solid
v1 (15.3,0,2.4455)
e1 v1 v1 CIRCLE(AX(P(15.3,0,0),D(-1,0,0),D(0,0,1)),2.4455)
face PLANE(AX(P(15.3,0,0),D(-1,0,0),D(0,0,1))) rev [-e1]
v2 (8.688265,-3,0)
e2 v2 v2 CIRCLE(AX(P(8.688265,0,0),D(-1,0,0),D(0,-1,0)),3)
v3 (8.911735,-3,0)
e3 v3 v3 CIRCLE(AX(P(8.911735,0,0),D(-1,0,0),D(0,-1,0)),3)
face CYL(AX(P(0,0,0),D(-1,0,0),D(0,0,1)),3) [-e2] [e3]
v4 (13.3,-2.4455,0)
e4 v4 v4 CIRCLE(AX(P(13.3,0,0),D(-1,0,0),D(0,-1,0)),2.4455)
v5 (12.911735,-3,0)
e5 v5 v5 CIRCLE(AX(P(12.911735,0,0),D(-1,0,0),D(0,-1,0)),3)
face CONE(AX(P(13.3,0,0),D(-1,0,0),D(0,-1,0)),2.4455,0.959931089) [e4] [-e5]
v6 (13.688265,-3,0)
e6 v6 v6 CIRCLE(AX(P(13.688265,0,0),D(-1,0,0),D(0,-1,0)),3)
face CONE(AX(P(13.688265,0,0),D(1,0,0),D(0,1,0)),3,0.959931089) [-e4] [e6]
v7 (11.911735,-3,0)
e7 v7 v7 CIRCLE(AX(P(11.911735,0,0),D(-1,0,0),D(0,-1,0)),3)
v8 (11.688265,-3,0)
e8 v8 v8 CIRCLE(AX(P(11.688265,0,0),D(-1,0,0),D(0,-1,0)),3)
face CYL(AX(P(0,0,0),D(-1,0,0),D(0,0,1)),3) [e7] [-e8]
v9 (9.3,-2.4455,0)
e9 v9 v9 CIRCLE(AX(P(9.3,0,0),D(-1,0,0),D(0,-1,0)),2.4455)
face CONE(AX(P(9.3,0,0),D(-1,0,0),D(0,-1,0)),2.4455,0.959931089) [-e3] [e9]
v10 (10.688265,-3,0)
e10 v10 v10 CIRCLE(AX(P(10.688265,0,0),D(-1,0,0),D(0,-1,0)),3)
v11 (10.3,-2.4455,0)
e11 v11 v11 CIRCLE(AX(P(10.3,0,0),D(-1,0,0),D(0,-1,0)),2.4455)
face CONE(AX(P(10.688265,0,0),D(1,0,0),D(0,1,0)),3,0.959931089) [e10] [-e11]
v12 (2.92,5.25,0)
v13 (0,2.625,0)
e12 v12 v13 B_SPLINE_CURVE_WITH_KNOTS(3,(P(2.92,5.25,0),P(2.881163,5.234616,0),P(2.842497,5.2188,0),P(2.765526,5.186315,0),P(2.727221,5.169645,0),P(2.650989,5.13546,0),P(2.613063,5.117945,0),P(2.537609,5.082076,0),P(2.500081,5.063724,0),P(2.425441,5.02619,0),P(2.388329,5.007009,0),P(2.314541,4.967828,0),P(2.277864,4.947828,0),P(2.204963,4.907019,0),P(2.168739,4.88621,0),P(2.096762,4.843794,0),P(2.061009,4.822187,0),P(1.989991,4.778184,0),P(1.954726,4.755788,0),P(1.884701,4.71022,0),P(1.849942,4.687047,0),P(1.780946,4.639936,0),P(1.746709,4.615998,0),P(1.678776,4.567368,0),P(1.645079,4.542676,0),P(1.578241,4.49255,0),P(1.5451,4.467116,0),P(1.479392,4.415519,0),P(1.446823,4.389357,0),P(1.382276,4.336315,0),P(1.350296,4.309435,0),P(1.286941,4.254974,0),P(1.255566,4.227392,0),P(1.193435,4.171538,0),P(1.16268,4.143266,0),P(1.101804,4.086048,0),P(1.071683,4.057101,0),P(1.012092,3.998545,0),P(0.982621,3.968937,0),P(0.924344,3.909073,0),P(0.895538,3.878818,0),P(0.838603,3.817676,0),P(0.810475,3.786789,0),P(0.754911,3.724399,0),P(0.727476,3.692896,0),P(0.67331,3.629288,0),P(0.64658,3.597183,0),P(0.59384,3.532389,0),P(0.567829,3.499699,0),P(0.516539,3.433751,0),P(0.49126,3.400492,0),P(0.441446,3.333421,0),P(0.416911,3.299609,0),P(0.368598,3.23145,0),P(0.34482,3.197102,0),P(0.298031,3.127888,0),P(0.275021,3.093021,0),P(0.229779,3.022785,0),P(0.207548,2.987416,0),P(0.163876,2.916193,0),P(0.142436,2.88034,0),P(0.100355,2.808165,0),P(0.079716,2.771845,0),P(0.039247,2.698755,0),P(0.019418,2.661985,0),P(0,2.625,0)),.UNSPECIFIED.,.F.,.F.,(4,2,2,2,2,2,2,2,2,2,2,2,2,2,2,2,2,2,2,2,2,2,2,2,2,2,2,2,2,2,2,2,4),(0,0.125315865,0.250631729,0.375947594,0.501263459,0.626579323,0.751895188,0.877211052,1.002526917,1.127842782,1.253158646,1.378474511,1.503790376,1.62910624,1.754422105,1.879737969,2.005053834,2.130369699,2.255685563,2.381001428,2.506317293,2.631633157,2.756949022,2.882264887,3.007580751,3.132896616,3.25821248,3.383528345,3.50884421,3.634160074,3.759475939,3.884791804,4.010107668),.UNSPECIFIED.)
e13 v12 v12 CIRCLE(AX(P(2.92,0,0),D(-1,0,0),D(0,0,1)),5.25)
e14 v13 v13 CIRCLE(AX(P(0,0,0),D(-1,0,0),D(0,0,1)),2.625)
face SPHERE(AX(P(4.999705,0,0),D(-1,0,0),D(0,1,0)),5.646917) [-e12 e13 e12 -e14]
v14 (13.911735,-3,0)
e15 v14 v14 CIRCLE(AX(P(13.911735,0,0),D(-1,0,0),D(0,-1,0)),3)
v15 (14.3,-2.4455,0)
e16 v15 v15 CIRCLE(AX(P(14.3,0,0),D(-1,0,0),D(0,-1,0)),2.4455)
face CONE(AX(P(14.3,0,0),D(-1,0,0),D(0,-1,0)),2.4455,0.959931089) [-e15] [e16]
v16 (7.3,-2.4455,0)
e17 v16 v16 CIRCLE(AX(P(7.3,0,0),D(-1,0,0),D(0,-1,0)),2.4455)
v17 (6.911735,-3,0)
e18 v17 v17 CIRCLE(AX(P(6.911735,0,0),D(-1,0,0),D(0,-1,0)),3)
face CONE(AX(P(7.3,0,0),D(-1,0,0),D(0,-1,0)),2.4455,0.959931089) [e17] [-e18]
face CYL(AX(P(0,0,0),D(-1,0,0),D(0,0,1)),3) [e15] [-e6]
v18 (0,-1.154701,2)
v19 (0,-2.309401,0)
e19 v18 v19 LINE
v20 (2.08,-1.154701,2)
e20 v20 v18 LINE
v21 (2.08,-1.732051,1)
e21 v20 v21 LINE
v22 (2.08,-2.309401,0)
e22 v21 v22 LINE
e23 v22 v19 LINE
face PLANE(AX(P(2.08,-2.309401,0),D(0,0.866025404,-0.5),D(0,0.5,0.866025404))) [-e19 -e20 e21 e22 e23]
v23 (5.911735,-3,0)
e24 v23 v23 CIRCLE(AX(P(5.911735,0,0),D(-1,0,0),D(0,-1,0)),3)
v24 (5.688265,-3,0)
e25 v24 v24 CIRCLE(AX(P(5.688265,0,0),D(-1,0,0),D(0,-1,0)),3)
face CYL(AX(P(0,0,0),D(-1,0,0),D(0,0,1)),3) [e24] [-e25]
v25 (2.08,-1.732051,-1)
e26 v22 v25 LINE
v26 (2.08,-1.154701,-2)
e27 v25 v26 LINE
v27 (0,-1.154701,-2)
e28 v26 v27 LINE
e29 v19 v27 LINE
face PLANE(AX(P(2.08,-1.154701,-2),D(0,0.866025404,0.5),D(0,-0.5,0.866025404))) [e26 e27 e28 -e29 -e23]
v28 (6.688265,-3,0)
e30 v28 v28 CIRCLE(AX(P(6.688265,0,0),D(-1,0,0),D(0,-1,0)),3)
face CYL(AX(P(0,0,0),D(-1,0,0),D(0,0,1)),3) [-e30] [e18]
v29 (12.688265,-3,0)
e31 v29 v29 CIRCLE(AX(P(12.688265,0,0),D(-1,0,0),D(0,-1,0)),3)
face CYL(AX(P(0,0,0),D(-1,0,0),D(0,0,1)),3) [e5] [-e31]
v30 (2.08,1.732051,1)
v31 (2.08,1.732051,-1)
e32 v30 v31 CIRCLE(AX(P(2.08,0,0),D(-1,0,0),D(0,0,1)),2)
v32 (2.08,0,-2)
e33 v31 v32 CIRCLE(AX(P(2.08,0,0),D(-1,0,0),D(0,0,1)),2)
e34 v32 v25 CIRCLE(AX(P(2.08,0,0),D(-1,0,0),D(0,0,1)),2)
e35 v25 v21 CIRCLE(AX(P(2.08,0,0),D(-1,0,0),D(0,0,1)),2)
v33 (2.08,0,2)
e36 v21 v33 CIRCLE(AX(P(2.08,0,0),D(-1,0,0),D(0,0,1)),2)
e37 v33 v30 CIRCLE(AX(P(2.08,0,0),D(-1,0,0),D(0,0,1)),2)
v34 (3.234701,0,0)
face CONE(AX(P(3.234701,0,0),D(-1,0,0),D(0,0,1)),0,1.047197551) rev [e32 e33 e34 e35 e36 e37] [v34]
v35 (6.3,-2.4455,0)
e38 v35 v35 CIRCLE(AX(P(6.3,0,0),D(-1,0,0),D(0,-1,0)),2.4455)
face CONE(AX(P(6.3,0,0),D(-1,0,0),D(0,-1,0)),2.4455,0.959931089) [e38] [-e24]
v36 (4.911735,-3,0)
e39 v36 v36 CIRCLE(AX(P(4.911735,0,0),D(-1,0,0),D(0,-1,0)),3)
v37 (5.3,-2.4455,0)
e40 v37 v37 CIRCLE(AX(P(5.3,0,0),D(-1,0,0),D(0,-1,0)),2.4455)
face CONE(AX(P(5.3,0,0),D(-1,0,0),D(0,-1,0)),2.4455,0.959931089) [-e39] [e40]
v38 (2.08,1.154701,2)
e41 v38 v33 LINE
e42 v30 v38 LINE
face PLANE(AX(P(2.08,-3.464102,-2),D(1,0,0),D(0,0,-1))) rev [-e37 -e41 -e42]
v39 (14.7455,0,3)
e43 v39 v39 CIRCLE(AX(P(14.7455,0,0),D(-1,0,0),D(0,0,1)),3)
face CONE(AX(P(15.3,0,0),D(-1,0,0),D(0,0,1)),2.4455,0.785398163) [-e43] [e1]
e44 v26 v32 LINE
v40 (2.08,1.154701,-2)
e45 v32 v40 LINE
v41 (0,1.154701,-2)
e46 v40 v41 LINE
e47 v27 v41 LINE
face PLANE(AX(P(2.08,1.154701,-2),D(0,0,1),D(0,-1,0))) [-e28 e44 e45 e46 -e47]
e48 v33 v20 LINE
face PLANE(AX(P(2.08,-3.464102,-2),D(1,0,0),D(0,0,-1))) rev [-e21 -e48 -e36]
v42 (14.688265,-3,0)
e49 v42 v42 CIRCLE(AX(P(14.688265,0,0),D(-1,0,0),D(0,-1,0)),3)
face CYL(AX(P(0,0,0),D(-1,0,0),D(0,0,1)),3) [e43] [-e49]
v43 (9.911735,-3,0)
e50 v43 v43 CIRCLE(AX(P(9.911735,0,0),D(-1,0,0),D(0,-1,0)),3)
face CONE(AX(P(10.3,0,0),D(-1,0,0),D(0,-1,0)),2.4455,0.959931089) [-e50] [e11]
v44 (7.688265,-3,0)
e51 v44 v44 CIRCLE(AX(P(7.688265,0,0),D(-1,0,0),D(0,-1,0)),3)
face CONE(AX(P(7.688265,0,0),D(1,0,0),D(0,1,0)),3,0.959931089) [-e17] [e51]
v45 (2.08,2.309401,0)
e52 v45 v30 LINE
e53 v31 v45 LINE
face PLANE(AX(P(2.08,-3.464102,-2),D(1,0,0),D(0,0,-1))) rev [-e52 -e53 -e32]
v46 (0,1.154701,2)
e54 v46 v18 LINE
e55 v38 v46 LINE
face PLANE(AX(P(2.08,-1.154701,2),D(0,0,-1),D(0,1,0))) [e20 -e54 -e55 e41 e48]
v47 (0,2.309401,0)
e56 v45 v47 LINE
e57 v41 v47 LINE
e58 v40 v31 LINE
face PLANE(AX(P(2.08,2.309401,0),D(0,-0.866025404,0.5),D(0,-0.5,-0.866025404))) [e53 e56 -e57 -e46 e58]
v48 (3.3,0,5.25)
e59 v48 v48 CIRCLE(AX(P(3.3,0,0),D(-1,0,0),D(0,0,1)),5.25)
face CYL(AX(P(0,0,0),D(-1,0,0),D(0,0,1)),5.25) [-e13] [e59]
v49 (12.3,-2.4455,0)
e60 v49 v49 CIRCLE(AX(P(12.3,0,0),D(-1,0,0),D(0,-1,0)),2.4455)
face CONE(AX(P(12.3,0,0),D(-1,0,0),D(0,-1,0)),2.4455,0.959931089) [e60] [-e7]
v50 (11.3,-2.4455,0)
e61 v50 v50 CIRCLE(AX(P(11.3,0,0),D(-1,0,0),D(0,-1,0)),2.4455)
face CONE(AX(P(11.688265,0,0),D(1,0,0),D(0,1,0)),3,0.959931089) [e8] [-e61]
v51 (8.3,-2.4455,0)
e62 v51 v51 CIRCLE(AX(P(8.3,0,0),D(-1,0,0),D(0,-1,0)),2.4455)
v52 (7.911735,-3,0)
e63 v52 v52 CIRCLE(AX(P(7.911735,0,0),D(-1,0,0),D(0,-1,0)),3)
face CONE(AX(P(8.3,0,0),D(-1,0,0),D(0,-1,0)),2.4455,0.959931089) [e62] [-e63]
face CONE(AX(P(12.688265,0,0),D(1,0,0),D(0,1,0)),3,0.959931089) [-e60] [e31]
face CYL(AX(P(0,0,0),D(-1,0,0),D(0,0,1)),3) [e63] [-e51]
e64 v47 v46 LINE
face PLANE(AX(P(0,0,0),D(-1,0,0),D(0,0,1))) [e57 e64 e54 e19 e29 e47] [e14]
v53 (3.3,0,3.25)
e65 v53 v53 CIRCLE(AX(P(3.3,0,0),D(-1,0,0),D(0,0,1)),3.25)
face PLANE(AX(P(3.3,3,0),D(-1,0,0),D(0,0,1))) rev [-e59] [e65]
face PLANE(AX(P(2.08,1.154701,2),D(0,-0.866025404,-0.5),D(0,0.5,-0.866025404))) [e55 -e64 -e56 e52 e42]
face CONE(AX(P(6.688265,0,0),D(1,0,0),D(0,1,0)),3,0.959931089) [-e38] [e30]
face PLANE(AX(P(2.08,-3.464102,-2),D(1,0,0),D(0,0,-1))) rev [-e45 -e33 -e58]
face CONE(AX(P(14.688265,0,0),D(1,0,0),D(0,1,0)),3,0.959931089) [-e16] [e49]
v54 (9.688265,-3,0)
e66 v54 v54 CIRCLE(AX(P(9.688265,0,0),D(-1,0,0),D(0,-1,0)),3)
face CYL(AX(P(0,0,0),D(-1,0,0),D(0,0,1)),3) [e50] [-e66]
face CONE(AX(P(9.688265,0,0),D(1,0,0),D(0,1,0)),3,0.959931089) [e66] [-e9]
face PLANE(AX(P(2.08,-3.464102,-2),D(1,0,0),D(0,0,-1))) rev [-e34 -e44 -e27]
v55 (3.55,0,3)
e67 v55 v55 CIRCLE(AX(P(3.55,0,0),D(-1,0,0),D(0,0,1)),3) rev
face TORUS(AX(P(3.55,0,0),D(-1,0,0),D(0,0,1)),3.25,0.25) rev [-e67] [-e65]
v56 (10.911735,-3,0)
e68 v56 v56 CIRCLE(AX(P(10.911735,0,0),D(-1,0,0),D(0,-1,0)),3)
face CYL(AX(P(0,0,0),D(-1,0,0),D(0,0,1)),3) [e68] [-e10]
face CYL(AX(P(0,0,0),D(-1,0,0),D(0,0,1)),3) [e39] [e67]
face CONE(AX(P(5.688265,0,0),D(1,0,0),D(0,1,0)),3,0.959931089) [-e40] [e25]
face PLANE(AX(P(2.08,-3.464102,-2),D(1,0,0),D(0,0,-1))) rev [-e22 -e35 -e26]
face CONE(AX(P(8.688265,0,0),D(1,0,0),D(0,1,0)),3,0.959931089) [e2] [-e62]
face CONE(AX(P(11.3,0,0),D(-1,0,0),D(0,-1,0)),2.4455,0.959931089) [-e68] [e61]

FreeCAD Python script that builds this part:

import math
import FreeCAD as App
import Part
import Sketcher

V = App.Vector
Q = App.Units.Quantity


def edges_at(feature, points):
    """Names of the edges that pass closest to the given points."""
    edges = feature.Shape.Edges
    near = lambda p: min(range(len(edges)), key=lambda i: edges[i].distToShape(Part.Vertex(*p))[0])
    return sorted({f"Edge{near(p) + 1}" for p in points})

doc = App.newDocument("Part")
body = doc.addObject("PartDesign::Body", "Body")

# Sketch on XY plane
sketch1 = body.newObject("Sketcher::SketchObject", "Sketch")
sketch1.AttachmentSupport = (doc.getObject("XY_Plane"), [""])
sketch1.MapMode = "FlatFace"
sketch1.addGeometry(Part.LineSegment(V(15.3, 0, 0), V(15.3, 2.45, 0)), False)
sketch1.addGeometry(Part.LineSegment(V(15.3, 2.45, 0), V(14.75, 3, 0)), False)
sketch1.addGeometry(Part.LineSegment(V(14.75, 3, 0), V(3.3, 3, 0)), False)
sketch1.addGeometry(Part.LineSegment(V(3.3, 3, 0), V(3.3, 5.25, 0)), False)
sketch1.addGeometry(Part.LineSegment(V(3.3, 5.25, 0), V(2.92, 5.25, 0)), False)
sketch1.addGeometry(Part.ArcOfCircle(Part.Circle(V(5, 0, 0), V(0, 0, 1), 5.65), math.radians(112), math.radians(152)), False)
sketch1.addGeometry(Part.LineSegment(V(0, 2.62, 0), V(0, 0, 0)), False)
sketch1.addGeometry(Part.LineSegment(V(0, 0, 0), V(15.3, 0, 0)), False)
sketch1.addConstraint(Sketcher.Constraint("Coincident", 0, 2, 1, 1))
sketch1.addConstraint(Sketcher.Constraint("Coincident", 1, 2, 2, 1))
sketch1.addConstraint(Sketcher.Constraint("Coincident", 2, 2, 3, 1))
sketch1.addConstraint(Sketcher.Constraint("Coincident", 3, 2, 4, 1))
sketch1.addConstraint(Sketcher.Constraint("Coincident", 4, 2, 5, 1))
sketch1.addConstraint(Sketcher.Constraint("Coincident", 5, 2, 6, 1))
sketch1.addConstraint(Sketcher.Constraint("Coincident", 6, 2, 7, 1))
sketch1.addConstraint(Sketcher.Constraint("Coincident", 7, 2, 0, 1))
sketch1.addConstraint(Sketcher.Constraint("Vertical", 0))
sketch1.addConstraint(Sketcher.Constraint("Horizontal", 2))
sketch1.addConstraint(Sketcher.Constraint("Vertical", 3))
sketch1.addConstraint(Sketcher.Constraint("Horizontal", 4))
sketch1.addConstraint(Sketcher.Constraint("Vertical", 6))
sketch1.addConstraint(Sketcher.Constraint("Horizontal", 7))
sketch1.addConstraint(Sketcher.Constraint("Coincident", 6, 2, -1, 1))
sketch1.addConstraint(Sketcher.Constraint("PointOnObject", 5, 3, -1))
sketch1.addConstraint(Sketcher.Constraint("Angle", 1, Q("135 deg")))
sketch1.addConstraint(Sketcher.Constraint("DistanceX", 7, 1, 7, 2, Q("15.3 mm")))
sketch1.addConstraint(Sketcher.Constraint("DistanceY", -1, 1, 1, 2, Q("3 mm")))
sketch1.addConstraint(Sketcher.Constraint("DistanceX", 2, 2, 0, 2, Q("12 mm")))
sketch1.addConstraint(Sketcher.Constraint("DistanceX", 4, 2, 4, 1, Q("0.38 mm")))
sketch1.addConstraint(Sketcher.Constraint("DistanceY", 3, 1, 3, 2, Q("2.25 mm")))
sketch1.addConstraint(Sketcher.Constraint("DistanceY", 6, 2, 6, 1, Q("2.625 mm")))
sketch1.addConstraint(Sketcher.Constraint("DistanceX", 2, 2, 2, 1, Q("11.4455 mm")))
revolution = body.newObject("PartDesign::Revolution", "Revolution")
revolution.Profile = sketch1
revolution.ReferenceAxis = (sketch1, ["H_Axis"])
revolution.Angle = 360
doc.recompute()

fillet = body.newObject("PartDesign::Fillet", "Fillet")
fillet.Base = (revolution, edges_at(revolution, [(3.3, 0, -3)]))
fillet.Radius = 0.25

# Sketch on XY plane
sketch2 = body.newObject("Sketcher::SketchObject", "Sketch001")
sketch2.AttachmentSupport = (doc.getObject("XY_Plane"), [""])
sketch2.MapMode = "FlatFace"
sketch2.addGeometry(Part.LineSegment(V(2.1, 2, 0), V(0, 2, 0)), False)
sketch2.addGeometry(Part.LineSegment(V(0, 2, 0), V(0, 0, 0)), False)
sketch2.addGeometry(Part.LineSegment(V(0, 0, 0), V(3.2, 0, 0)), False)
sketch2.addGeometry(Part.LineSegment(V(3.2, 0, 0), V(2.1, 2, 0)), False)
sketch2.addConstraint(Sketcher.Constraint("Coincident", 0, 2, 1, 1))
sketch2.addConstraint(Sketcher.Constraint("Coincident", 1, 2, 2, 1))
sketch2.addConstraint(Sketcher.Constraint("Coincident", 2, 2, 3, 1))
sketch2.addConstraint(Sketcher.Constraint("Coincident", 3, 2, 0, 1))
sketch2.addConstraint(Sketcher.Constraint("Horizontal", 0))
sketch2.addConstraint(Sketcher.Constraint("Vertical", 1))
sketch2.addConstraint(Sketcher.Constraint("Horizontal", 2))
sketch2.addConstraint(Sketcher.Constraint("Coincident", 1, 2, -1, 1))
sketch2.addConstraint(Sketcher.Constraint("DistanceY", 1, 2, 1, 1, Q("2 mm")))
sketch2.addConstraint(Sketcher.Constraint("Angle", 3, Q("120 deg")))
sketch2.addConstraint(Sketcher.Constraint("DistanceX", 0, 2, 0, 1, Q("2.08 mm")))
groove = body.newObject("PartDesign::Groove", "Groove")
groove.Profile = sketch2
groove.ReferenceAxis = (sketch2, ["H_Axis"])
groove.Angle = 360

# Sketch on YZ plane
sketch3 = body.newObject("Sketcher::SketchObject", "Sketch002")
sketch3.AttachmentSupport = (doc.getObject("YZ_Plane"), [""])
sketch3.MapMode = "FlatFace"
sketch3.addGeometry(Part.LineSegment(V(1.2, 2, 0), V(-1.2, 2, 0)), False)
sketch3.addGeometry(Part.LineSegment(V(-1.2, 2, 0), V(-2.3, 0, 0)), False)
sketch3.addGeometry(Part.LineSegment(V(-2.3, 0, 0), V(-1.2, -2, 0)), False)
sketch3.addGeometry(Part.LineSegment(V(-1.2, -2, 0), V(1.2, -2, 0)), False)
sketch3.addGeometry(Part.LineSegment(V(1.2, -2, 0), V(2.3, 0, 0)), False)
sketch3.addGeometry(Part.LineSegment(V(2.3, 0, 0), V(1.2, 2, 0)), False)
sketch3.addConstraint(Sketcher.Constraint("Coincident", 0, 2, 1, 1))
sketch3.addConstraint(Sketcher.Constraint("Coincident", 1, 2, 2, 1))
sketch3.addConstraint(Sketcher.Constraint("Coincident", 2, 2, 3, 1))
sketch3.addConstraint(Sketcher.Constraint("Coincident", 3, 2, 4, 1))
sketch3.addConstraint(Sketcher.Constraint("Coincident", 4, 2, 5, 1))
sketch3.addConstraint(Sketcher.Constraint("Coincident", 5, 2, 0, 1))
sketch3.addConstraint(Sketcher.Constraint("Horizontal", 0))
sketch3.addConstraint(Sketcher.Constraint("Horizontal", 3))
sketch3.addConstraint(Sketcher.Constraint("Symmetric", 0, 2, 3, 2, -1, 1))
sketch3.addConstraint(Sketcher.Constraint("Symmetric", 1, 2, 4, 2, -1, 1))
sketch3.addConstraint(Sketcher.Constraint("PointOnObject", 1, 2, -1))
sketch3.addConstraint(Sketcher.Constraint("Parallel", 2, 5))
sketch3.addConstraint(Sketcher.Constraint("Vertical", 0, 2, 2, 2))
sketch3.addConstraint(Sketcher.Constraint("Angle", 1, Q("-120 deg")))
sketch3.addConstraint(Sketcher.Constraint("DistanceY", -1, 1, 0, 2, Q("2 mm")))
sketch3.addConstraint(Sketcher.Constraint("DistanceX", 0, 2, 0, 1, Q("2.309401 mm")))
pocket1 = body.newObject("PartDesign::Pocket", "Pocket")
pocket1.Profile = sketch3
pocket1.Length = 2.08
pocket1.Reversed = True

# Sketch on XY plane
sketch4 = body.newObject("Sketcher::SketchObject", "Sketch003")
sketch4.AttachmentSupport = (doc.getObject("XY_Plane"), [""])
sketch4.MapMode = "FlatFace"
sketch4.addGeometry(Part.LineSegment(V(5.3, -2.4, 0), V(4.9, -3, 0)), False)
sketch4.addGeometry(Part.LineSegment(V(4.9, -3, 0), V(4.9, -3.8, 0)), False)
sketch4.addGeometry(Part.LineSegment(V(4.9, -3.8, 0), V(5.7, -3.8, 0)), False)
sketch4.addGeometry(Part.LineSegment(V(5.7, -3.8, 0), V(5.7, -3, 0)), False)
sketch4.addGeometry(Part.LineSegment(V(5.7, -3, 0), V(5.3, -2.4, 0)), False)
sketch4.addConstraint(Sketcher.Constraint("Coincident", 0, 2, 1, 1))
sketch4.addConstraint(Sketcher.Constraint("Coincident", 1, 2, 2, 1))
sketch4.addConstraint(Sketcher.Constraint("Coincident", 2, 2, 3, 1))
sketch4.addConstraint(Sketcher.Constraint("Coincident", 3, 2, 4, 1))
sketch4.addConstraint(Sketcher.Constraint("Coincident", 4, 2, 0, 1))
sketch4.addConstraint(Sketcher.Constraint("Vertical", 1))
sketch4.addConstraint(Sketcher.Constraint("Horizontal", 2))
sketch4.addConstraint(Sketcher.Constraint("Vertical", 3))
sketch4.addConstraint(Sketcher.Constraint("Horizontal", 0, 2, 3, 2))
sketch4.addConstraint(Sketcher.Constraint("Equal", 0, 4))
sketch4.addConstraint(Sketcher.Constraint("Angle", 0, Q("-125 deg")))
sketch4.addConstraint(Sketcher.Constraint("DistanceY", 0, 2, -1, 1, Q("3 mm")))
sketch4.addConstraint(Sketcher.Constraint("DistanceY", 1, 2, 1, 1, Q("0.75 mm")))
sketch4.addConstraint(Sketcher.Constraint("DistanceX", -1, 1, 4, 2, Q("5.3 mm")))
sketch4.addConstraint(Sketcher.Constraint("DistanceX", 2, 1, 2, 2, Q("0.77653 mm")))
groove2 = body.newObject("PartDesign::Groove", "Groove001")
groove2.Profile = sketch4
groove2.ReferenceAxis = (sketch4, ["H_Axis"])
groove2.Angle = 360
doc.recompute()

linearpattern = body.newObject("PartDesign::LinearPattern", "LinearPattern")
linearpattern.Originals = [groove2]
linearpattern.Direction = (doc.getObject("X_Axis"), [""])
linearpattern.Mode = "offset"
linearpattern.Offset = 1
linearpattern.Occurrences = 10
body.Tip = linearpattern

doc.recompute()
